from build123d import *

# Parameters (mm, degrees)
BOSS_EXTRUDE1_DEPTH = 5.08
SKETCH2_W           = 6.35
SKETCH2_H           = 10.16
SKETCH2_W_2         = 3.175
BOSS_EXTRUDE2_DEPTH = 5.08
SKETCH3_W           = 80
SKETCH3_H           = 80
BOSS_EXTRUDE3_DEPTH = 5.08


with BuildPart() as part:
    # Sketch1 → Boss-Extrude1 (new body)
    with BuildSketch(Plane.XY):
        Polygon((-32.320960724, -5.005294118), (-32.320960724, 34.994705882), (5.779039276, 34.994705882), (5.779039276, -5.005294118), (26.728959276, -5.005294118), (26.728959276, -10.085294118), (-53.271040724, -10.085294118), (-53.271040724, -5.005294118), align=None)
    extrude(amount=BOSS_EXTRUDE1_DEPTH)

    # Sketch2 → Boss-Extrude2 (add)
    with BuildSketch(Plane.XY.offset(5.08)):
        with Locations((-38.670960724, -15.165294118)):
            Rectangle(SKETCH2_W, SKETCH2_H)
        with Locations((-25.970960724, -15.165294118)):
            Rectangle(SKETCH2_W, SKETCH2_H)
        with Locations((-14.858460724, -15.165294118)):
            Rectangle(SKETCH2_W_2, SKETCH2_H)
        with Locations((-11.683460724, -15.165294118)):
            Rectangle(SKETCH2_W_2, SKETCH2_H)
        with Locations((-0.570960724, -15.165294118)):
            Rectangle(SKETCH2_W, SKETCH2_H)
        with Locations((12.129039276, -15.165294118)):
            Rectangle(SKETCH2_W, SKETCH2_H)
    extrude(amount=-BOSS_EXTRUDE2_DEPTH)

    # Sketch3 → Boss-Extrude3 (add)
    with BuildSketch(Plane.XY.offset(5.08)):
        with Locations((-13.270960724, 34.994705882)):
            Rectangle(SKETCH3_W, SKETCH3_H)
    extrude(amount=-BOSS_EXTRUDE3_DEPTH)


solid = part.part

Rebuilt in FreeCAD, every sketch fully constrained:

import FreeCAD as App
import Part
import Sketcher

V = App.Vector
Q = App.Units.Quantity

doc = App.newDocument("Part")
body = doc.addObject("PartDesign::Body", "Body")

sketch1 = doc.addObject("Sketcher::SketchObject", "Sketch")
body.addObject(sketch1)
sketch1.AttachmentSupport = (doc.XY_Plane, [""])
sketch1.MapMode = "FlatFace"
sketch1.addGeometry(Part.LineSegment(V(-32, 35, 0), V(-32, -5, 0)), False)
sketch1.addGeometry(Part.LineSegment(V(-32, -5, 0), V(-53, -5, 0)), False)
sketch1.addGeometry(Part.LineSegment(V(-53, -5, 0), V(-53, -10, 0)), False)
sketch1.addGeometry(Part.LineSegment(V(-53, -10, 0), V(27, -10, 0)), False)
sketch1.addGeometry(Part.LineSegment(V(27, -10, 0), V(27, -5, 0)), False)
sketch1.addGeometry(Part.LineSegment(V(27, -5, 0), V(6, -5, 0)), False)
sketch1.addGeometry(Part.LineSegment(V(6, -5, 0), V(6, 35, 0)), False)
sketch1.addGeometry(Part.LineSegment(V(6, 35, 0), V(-32, 35, 0)), False)
sketch1.addConstraint(Sketcher.Constraint("Coincident", 0, 2, 1, 1))
sketch1.addConstraint(Sketcher.Constraint("Coincident", 1, 2, 2, 1))
sketch1.addConstraint(Sketcher.Constraint("Coincident", 2, 2, 3, 1))
sketch1.addConstraint(Sketcher.Constraint("Coincident", 3, 2, 4, 1))
sketch1.addConstraint(Sketcher.Constraint("Coincident", 4, 2, 5, 1))
sketch1.addConstraint(Sketcher.Constraint("Coincident", 5, 2, 6, 1))
sketch1.addConstraint(Sketcher.Constraint("Coincident", 6, 2, 7, 1))
sketch1.addConstraint(Sketcher.Constraint("Coincident", 7, 2, 0, 1))
sketch1.addConstraint(Sketcher.Constraint("Vertical", 0))
sketch1.addConstraint(Sketcher.Constraint("Horizontal", 1))
sketch1.addConstraint(Sketcher.Constraint("Vertical", 2))
sketch1.addConstraint(Sketcher.Constraint("Horizontal", 3))
sketch1.addConstraint(Sketcher.Constraint("Vertical", 4))
sketch1.addConstraint(Sketcher.Constraint("Horizontal", 5))
sketch1.addConstraint(Sketcher.Constraint("Vertical", 6))
sketch1.addConstraint(Sketcher.Constraint("Horizontal", 7))
sketch1.addConstraint(Sketcher.Constraint("Horizontal", 1, 2, 4, 2))
sketch1.addConstraint(Sketcher.Constraint("DistanceX", 7, 2, 7, 1, Q("1.5 in")))
sketch1.addConstraint(Sketcher.Constraint("DistanceY", 2, 2, 2, 1, Q("0.2 in")))
sketch1.addConstraint(Sketcher.Constraint("DistanceX", 5, 2, 5, 1, Q("0.8248 in")))
sketch1.addConstraint(Sketcher.Constraint("DistanceX", 3, 1, 3, 2, Q("80 mm")))
sketch1.addConstraint(Sketcher.Constraint("DistanceY", 0, 2, 0, 1, Q("40 mm")))
sketch1.addConstraint(Sketcher.Constraint("DistanceX", 0, 2, -1, 1, Q("32.320961 mm")))
sketch1.addConstraint(Sketcher.Constraint("DistanceY", 0, 2, -1, 1, Q("5.005294 mm")))
pad1 = doc.addObject("PartDesign::Pad", "Pad")
body.addObject(pad1)
pad1.Profile = sketch1
pad1.Length = Q("0.2 in")

sketch2 = doc.addObject("Sketcher::SketchObject", "Sketch001")
body.addObject(sketch2)
sketch2.AttachmentSupport = (doc.XY_Plane, [""])
sketch2.MapMode = "FlatFace"
sketch2.AttachmentOffset = App.Placement(V(0, 0, 0.2 * 25.4), App.Rotation())
sketch2.addGeometry(Part.LineSegment(V(-42, -10, 0), V(-42, -20, 0)), False)
sketch2.addGeometry(Part.LineSegment(V(-42, -20, 0), V(-35, -20, 0)), False)
sketch2.addGeometry(Part.LineSegment(V(-35, -20, 0), V(-35, -10, 0)), False)
sketch2.addGeometry(Part.LineSegment(V(-35, -10, 0), V(-42, -10, 0)), False)
sketch2.addGeometry(Part.LineSegment(V(-29, -10, 0), V(-29, -20, 0)), False)
sketch2.addGeometry(Part.LineSegment(V(-29, -20, 0), V(-23, -20, 0)), False)
sketch2.addGeometry(Part.LineSegment(V(-23, -20, 0), V(-23, -10, 0)), False)
sketch2.addGeometry(Part.LineSegment(V(-23, -10, 0), V(-29, -10, 0)), False)
sketch2.addGeometry(Part.LineSegment(V(-16, -10, 0), V(-16, -20, 0)), False)
sketch2.addGeometry(Part.LineSegment(V(-16, -20, 0), V(-10, -20, 0)), False)
sketch2.addGeometry(Part.LineSegment(V(-10, -20, 0), V(-10, -10, 0)), False)
sketch2.addGeometry(Part.LineSegment(V(-10, -10, 0), V(-16, -10, 0)), False)
sketch2.addGeometry(Part.LineSegment(V(-4, -10, 0), V(-4, -20, 0)), False)
sketch2.addGeometry(Part.LineSegment(V(-4, -20, 0), V(3, -20, 0)), False)
sketch2.addGeometry(Part.LineSegment(V(3, -20, 0), V(3, -10, 0)), False)
sketch2.addGeometry(Part.LineSegment(V(3, -10, 0), V(-4, -10, 0)), False)
sketch2.addGeometry(Part.LineSegment(V(9, -10, 0), V(9, -20, 0)), False)
sketch2.addGeometry(Part.LineSegment(V(9, -20, 0), V(15, -20, 0)), False)
sketch2.addGeometry(Part.LineSegment(V(15, -20, 0), V(15, -10, 0)), False)
sketch2.addGeometry(Part.LineSegment(V(15, -10, 0), V(9, -10, 0)), False)
sketch2.addConstraint(Sketcher.Constraint("Coincident", 0, 2, 1, 1))
sketch2.addConstraint(Sketcher.Constraint("Coincident", 1, 2, 2, 1))
sketch2.addConstraint(Sketcher.Constraint("Coincident", 2, 2, 3, 1))
sketch2.addConstraint(Sketcher.Constraint("Coincident", 3, 2, 0, 1))
sketch2.addConstraint(Sketcher.Constraint("Coincident", 4, 2, 5, 1))
sketch2.addConstraint(Sketcher.Constraint("Coincident", 5, 2, 6, 1))
sketch2.addConstraint(Sketcher.Constraint("Coincident", 6, 2, 7, 1))
sketch2.addConstraint(Sketcher.Constraint("Coincident", 7, 2, 4, 1))
sketch2.addConstraint(Sketcher.Constraint("Coincident", 8, 2, 9, 1))
sketch2.addConstraint(Sketcher.Constraint("Coincident", 9, 2, 10, 1))
sketch2.addConstraint(Sketcher.Constraint("Coincident", 10, 2, 11, 1))
sketch2.addConstraint(Sketcher.Constraint("Coincident", 11, 2, 8, 1))
sketch2.addConstraint(Sketcher.Constraint("Coincident", 12, 2, 13, 1))
sketch2.addConstraint(Sketcher.Constraint("Coincident", 13, 2, 14, 1))
sketch2.addConstraint(Sketcher.Constraint("Coincident", 14, 2, 15, 1))
sketch2.addConstraint(Sketcher.Constraint("Coincident", 15, 2, 12, 1))
sketch2.addConstraint(Sketcher.Constraint("Coincident", 16, 2, 17, 1))
sketch2.addConstraint(Sketcher.Constraint("Coincident", 17, 2, 18, 1))
sketch2.addConstraint(Sketcher.Constraint("Coincident", 18, 2, 19, 1))
sketch2.addConstraint(Sketcher.Constraint("Coincident", 19, 2, 16, 1))
sketch2.addConstraint(Sketcher.Constraint("Vertical", 0))
sketch2.addConstraint(Sketcher.Constraint("Horizontal", 1))
sketch2.addConstraint(Sketcher.Constraint("Vertical", 2))
sketch2.addConstraint(Sketcher.Constraint("Horizontal", 3))
sketch2.addConstraint(Sketcher.Constraint("Vertical", 4))
sketch2.addConstraint(Sketcher.Constraint("Horizontal", 5))
sketch2.addConstraint(Sketcher.Constraint("Vertical", 6))
sketch2.addConstraint(Sketcher.Constraint("Horizontal", 7))
sketch2.addConstraint(Sketcher.Constraint("Vertical", 8))
sketch2.addConstraint(Sketcher.Constraint("Horizontal", 9))
sketch2.addConstraint(Sketcher.Constraint("Vertical", 10))
sketch2.addConstraint(Sketcher.Constraint("Horizontal", 11))
sketch2.addConstraint(Sketcher.Constraint("Vertical", 12))
sketch2.addConstraint(Sketcher.Constraint("Horizontal", 13))
sketch2.addConstraint(Sketcher.Constraint("Vertical", 14))
sketch2.addConstraint(Sketcher.Constraint("Horizontal", 15))
sketch2.addConstraint(Sketcher.Constraint("Vertical", 16))
sketch2.addConstraint(Sketcher.Constraint("Horizontal", 17))
sketch2.addConstraint(Sketcher.Constraint("Vertical", 18))
sketch2.addConstraint(Sketcher.Constraint("Horizontal", 19))
sketch2.addConstraint(Sketcher.Constraint("Horizontal", 1, 2, 4, 2))
sketch2.addConstraint(Sketcher.Constraint("Horizontal", 3, 2, 6, 2))
sketch2.addConstraint(Sketcher.Constraint("Horizontal", 5, 2, 8, 2))
sketch2.addConstraint(Sketcher.Constraint("Horizontal", 7, 2, 10, 2))
sketch2.addConstraint(Sketcher.Constraint("Horizontal", 9, 2, 12, 2))
sketch2.addConstraint(Sketcher.Constraint("Horizontal", 11, 2, 14, 2))
sketch2.addConstraint(Sketcher.Constraint("Horizontal", 13, 2, 16, 2))
sketch2.addConstraint(Sketcher.Constraint("Horizontal", 15, 2, 18, 2))
sketch2.addConstraint(Sketcher.Constraint("Equal", 3, 5))
sketch2.addConstraint(Sketcher.Constraint("Equal", 7, 9))
sketch2.addConstraint(Sketcher.Constraint("Equal", 11, 13))
sketch2.addConstraint(Sketcher.Constraint("Equal", 15, 17))
sketch2.addConstraint(Sketcher.Constraint("DistanceY", 0, 2, 0, 1, Q("0.4 in")))
sketch2.addConstraint(Sketcher.Constraint("DistanceX", 1, 1, 1, 2, Q("0.25 in")))
sketch2.addConstraint(Sketcher.Constraint("DistanceX", 0, 2, 4, 2, Q("0.5 in")))
sketch2.addConstraint(Sketcher.Constraint("DistanceX", 4, 2, 8, 2, Q("0.5 in")))
sketch2.addConstraint(Sketcher.Constraint("DistanceX", 8, 2, 12, 2, Q("0.5 in")))
sketch2.addConstraint(Sketcher.Constraint("DistanceX", 12, 2, 16, 2, Q("0.5 in")))
sketch2.addConstraint(Sketcher.Constraint("DistanceX", 0, 2, -1, 1, Q("41.845961 mm")))
sketch2.addConstraint(Sketcher.Constraint("DistanceY", 0, 2, -1, 1, Q("20.245294 mm")))
pad2 = doc.addObject("PartDesign::Pad", "Pad001")
body.addObject(pad2)
pad2.Profile = sketch2
pad2.Length = Q("0.2 in")
pad2.Reversed = True

sketch3 = doc.addObject("Sketcher::SketchObject", "Sketch002")
body.addObject(sketch3)
sketch3.AttachmentSupport = (doc.XY_Plane, [""])
sketch3.MapMode = "FlatFace"
sketch3.AttachmentOffset = App.Placement(V(0, 0, 0.2 * 25.4), App.Rotation())
sketch3.addGeometry(Part.LineSegment(V(-53, 75, 0), V(-53, -5, 0)), False)
sketch3.addGeometry(Part.LineSegment(V(-53, -5, 0), V(27, -5, 0)), False)
sketch3.addGeometry(Part.LineSegment(V(27, -5, 0), V(27, 75, 0)), False)
sketch3.addGeometry(Part.LineSegment(V(27, 75, 0), V(-53, 75, 0)), False)
sketch3.addConstraint(Sketcher.Constraint("Coincident", 0, 2, 1, 1))
sketch3.addConstraint(Sketcher.Constraint("Coincident", 1, 2, 2, 1))
sketch3.addConstraint(Sketcher.Constraint("Coincident", 2, 2, 3, 1))
sketch3.addConstraint(Sketcher.Constraint("Coincident", 3, 2, 0, 1))
sketch3.addConstraint(Sketcher.Constraint("Vertical", 0))
sketch3.addConstraint(Sketcher.Constraint("Horizontal", 1))
sketch3.addConstraint(Sketcher.Constraint("Vertical", 2))
sketch3.addConstraint(Sketcher.Constraint("Horizontal", 3))
sketch3.addConstraint(Sketcher.Constraint("Equal", 3, 0))
sketch3.addConstraint(Sketcher.Constraint("DistanceX", 1, 1, 1, 2, Q("80 mm")))
sketch3.addConstraint(Sketcher.Constraint("DistanceX", 0, 2, -1, 1, Q("53.270961 mm")))
sketch3.addConstraint(Sketcher.Constraint("DistanceY", 0, 2, -1, 1, Q("5.005294 mm")))
pad3 = doc.addObject("PartDesign::Pad", "Pad002")
body.addObject(pad3)
pad3.Profile = sketch3
pad3.Length = Q("0.2 in")
pad3.Reversed = True

doc.recompute()
